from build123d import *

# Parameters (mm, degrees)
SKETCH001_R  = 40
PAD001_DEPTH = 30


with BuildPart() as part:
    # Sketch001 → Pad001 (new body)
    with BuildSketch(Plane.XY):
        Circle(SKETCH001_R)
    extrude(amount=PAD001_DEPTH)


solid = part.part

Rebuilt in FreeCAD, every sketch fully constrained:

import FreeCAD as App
import Part
import Sketcher

V = App.Vector
Q = App.Units.Quantity

doc = App.newDocument("Part")
body = doc.addObject("PartDesign::Body", "Body")

# Sketch on XY plane
sketch1 = body.newObject("Sketcher::SketchObject", "Sketch")
sketch1.AttachmentSupport = (doc.getObject("XY_Plane"), [""])
sketch1.MapMode = "FlatFace"
sketch1.addGeometry(Part.Circle(V(0, 0, 0), V(0, 0, 1), 40), False)
sketch1.addConstraint(Sketcher.Constraint("Coincident", 0, 3, -1, 1))
sketch1.addConstraint(Sketcher.Constraint("Diameter", 0, Q("80 mm")))
pad1 = body.newObject("PartDesign::Pad", "Pad")
pad1.Profile = sketch1
pad1.Length = 30

doc.recompute()
